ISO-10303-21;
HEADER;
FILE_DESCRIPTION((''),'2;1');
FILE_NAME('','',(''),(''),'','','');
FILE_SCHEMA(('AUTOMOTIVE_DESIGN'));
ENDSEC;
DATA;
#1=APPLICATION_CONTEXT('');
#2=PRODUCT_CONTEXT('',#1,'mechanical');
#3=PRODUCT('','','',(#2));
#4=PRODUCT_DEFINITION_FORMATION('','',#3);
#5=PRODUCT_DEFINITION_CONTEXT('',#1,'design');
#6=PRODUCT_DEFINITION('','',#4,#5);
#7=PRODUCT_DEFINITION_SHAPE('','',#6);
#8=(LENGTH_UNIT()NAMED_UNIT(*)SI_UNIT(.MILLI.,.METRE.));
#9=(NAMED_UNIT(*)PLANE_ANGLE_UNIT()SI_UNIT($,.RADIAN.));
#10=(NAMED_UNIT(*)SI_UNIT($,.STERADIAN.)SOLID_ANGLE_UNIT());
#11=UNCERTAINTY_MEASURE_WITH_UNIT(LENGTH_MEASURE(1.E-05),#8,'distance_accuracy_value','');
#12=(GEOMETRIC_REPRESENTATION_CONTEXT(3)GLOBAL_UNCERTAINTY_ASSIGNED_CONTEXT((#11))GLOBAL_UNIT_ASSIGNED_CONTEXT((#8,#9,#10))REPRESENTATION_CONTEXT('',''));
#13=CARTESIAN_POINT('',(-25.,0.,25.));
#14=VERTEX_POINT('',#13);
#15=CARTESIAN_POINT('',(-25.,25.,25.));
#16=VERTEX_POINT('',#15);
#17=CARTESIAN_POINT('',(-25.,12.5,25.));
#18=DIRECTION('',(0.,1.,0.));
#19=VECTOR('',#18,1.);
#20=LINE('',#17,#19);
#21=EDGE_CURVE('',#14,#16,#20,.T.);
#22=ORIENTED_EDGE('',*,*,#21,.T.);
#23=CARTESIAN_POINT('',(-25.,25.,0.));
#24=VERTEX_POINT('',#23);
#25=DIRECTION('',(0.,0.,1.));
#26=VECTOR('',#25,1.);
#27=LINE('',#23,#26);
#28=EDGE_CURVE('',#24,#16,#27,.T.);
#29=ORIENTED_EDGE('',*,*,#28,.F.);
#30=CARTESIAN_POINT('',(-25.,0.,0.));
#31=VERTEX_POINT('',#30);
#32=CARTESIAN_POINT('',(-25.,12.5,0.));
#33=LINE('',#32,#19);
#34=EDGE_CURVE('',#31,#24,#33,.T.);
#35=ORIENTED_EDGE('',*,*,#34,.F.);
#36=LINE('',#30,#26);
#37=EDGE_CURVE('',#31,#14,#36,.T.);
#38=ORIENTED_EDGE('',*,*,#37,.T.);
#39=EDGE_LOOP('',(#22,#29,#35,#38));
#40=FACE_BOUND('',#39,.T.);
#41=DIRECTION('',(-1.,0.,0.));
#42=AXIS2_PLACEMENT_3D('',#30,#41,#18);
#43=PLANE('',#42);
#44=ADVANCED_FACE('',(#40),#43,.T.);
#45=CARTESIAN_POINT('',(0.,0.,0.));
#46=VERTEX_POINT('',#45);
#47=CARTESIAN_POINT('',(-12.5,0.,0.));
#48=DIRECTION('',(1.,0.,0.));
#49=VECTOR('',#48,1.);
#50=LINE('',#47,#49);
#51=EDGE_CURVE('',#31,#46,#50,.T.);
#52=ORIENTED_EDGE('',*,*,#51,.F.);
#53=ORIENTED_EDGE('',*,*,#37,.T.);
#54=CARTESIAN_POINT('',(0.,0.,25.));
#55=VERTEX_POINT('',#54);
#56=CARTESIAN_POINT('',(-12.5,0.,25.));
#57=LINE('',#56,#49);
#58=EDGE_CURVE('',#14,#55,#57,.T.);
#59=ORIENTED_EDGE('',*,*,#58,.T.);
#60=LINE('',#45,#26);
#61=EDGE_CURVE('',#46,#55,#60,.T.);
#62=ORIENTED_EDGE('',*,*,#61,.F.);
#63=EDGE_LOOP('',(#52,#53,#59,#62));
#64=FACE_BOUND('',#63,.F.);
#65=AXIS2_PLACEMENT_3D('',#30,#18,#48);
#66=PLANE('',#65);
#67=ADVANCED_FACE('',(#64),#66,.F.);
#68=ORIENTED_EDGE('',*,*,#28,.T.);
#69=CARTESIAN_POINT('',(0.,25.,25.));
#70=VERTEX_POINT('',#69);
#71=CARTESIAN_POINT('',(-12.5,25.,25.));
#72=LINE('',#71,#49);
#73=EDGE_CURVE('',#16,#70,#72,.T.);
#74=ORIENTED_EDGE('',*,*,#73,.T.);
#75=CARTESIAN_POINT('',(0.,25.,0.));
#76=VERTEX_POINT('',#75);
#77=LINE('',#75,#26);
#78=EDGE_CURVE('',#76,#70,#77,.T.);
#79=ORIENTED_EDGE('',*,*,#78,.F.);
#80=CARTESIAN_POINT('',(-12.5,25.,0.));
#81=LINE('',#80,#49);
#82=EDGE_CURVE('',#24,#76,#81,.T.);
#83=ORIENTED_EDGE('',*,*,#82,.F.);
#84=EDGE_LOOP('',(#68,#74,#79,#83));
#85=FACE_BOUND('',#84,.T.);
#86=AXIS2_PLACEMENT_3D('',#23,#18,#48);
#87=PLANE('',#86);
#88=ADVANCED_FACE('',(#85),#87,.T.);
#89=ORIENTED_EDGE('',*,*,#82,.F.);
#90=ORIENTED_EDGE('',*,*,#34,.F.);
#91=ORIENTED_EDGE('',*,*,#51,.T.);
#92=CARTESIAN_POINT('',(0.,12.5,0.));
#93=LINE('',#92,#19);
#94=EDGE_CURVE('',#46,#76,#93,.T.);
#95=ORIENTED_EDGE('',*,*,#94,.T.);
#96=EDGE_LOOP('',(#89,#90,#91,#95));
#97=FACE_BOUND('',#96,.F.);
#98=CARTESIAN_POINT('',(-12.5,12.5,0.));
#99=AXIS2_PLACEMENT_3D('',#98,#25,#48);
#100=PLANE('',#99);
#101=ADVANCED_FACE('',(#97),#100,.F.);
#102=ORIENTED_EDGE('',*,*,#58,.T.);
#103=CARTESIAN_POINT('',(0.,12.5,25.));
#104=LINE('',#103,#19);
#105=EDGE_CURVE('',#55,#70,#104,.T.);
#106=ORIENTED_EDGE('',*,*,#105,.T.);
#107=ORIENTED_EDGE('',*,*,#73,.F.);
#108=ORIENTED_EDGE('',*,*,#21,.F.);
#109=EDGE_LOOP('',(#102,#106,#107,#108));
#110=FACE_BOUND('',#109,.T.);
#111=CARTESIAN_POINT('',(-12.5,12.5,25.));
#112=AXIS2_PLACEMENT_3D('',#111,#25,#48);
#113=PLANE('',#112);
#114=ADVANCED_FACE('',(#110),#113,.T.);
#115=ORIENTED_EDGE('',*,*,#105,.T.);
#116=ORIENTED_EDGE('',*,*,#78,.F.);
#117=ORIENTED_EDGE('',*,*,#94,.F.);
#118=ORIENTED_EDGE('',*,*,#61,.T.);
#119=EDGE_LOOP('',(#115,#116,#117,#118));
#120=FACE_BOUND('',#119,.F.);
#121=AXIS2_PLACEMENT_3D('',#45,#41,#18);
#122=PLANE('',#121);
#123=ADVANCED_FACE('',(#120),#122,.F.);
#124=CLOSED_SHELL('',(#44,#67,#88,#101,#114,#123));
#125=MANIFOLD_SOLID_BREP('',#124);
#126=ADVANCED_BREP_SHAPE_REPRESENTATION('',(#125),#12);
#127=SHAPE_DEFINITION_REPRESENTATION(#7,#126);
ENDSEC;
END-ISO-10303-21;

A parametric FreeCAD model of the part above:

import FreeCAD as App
import Part
import Sketcher
from FreeCAD import Vector
Q = App.Units.Quantity


def add_polygon(sketch, points):
    """Adds a closed chain of lines whose ends are joined by coincident constraints."""
    first, n = sketch.GeometryCount, len(points)
    for a, b in zip(points, points[1:] + points[:1]):
        sketch.addGeometry(Part.LineSegment(App.Vector(*a, 0), App.Vector(*b, 0)), False)
    for i in range(n):
        sketch.addConstraint(Sketcher.Constraint("Coincident", first + i, 2, first + (i + 1) % n, 1))

doc = App.newDocument("Part")
body = doc.addObject("PartDesign::Body", "Body")

# Sketch on XY plane
sketch1 = body.newObject("Sketcher::SketchObject", "Sketch")
sketch1.AttachmentSupport = (doc.getObject("XY_Plane"), [""])
sketch1.MapMode = "FlatFace"
add_polygon(sketch1, [(-25, 25), (-25, 0), (0, 0), (0, 25)])  # lines 0-3
sketch1.addConstraint([
    Sketcher.Constraint("Vertical", 0),
    Sketcher.Constraint("Horizontal", 1),
    Sketcher.Constraint("Vertical", 2),
    Sketcher.Constraint("Horizontal", 3),
    Sketcher.Constraint("Coincident", 1, 2, -1, 1),
    Sketcher.Constraint("Equal", 3, 0),
    Sketcher.Constraint("DistanceX", 1, 1, 1, 2, Q("25 mm")),
])
pad1 = body.newObject("PartDesign::Pad", "Pad")
pad1.Profile = sketch1
pad1.Length = 25

doc.recompute()
